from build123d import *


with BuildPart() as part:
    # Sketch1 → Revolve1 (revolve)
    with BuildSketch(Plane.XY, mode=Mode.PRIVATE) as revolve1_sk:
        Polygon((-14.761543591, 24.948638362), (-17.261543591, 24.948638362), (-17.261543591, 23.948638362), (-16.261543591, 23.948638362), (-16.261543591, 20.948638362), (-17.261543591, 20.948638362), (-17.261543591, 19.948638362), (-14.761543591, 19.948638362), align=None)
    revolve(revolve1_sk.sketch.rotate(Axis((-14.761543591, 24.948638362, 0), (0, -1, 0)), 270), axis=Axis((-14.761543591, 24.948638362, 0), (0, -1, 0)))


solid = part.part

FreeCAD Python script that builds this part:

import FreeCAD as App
import Part
import Sketcher

V = App.Vector
Q = App.Units.Quantity

doc = App.newDocument("Part")
body = doc.addObject("PartDesign::Body", "Body")

sketch1 = body.newObject("Sketcher::SketchObject", "Sketch")
sketch1.AttachmentSupport = (doc.getObject("XY_Plane"), [""])
sketch1.MapMode = "FlatFace"
sketch1.addGeometry([
    Part.LineSegment(V(-14.761544, 24.948638, 0), V(-17.261544, 24.948638, 0)),
    Part.LineSegment(V(-17.261544, 24.948638, 0), V(-17.261544, 23.948638, 0)),
    Part.LineSegment(V(-17.261544, 23.948638, 0), V(-16.261544, 23.948638, 0)),
    Part.LineSegment(V(-16.261544, 23.948638, 0), V(-16.261544, 20.948638, 0)),
    Part.LineSegment(V(-16.261544, 20.948638, 0), V(-17.261544, 20.948638, 0)),
    Part.LineSegment(V(-17.261544, 20.948638, 0), V(-17.261544, 19.948638, 0)),
    Part.LineSegment(V(-17.261544, 19.948638, 0), V(-14.761544, 19.948638, 0)),
    Part.LineSegment(V(-14.761544, 19.948638, 0), V(-14.761544, 24.948638, 0)),
], False)
sketch1.addGeometry(Part.LineSegment(V(-14.761544, 24.948638, 0), V(-14.761544, 19.948638, 0)), True)
sketch1.addConstraint([
    Sketcher.Constraint("Coincident", 0, 2, 1, 1),
    Sketcher.Constraint("Coincident", 1, 2, 2, 1),
    Sketcher.Constraint("Coincident", 2, 2, 3, 1),
    Sketcher.Constraint("Coincident", 3, 2, 4, 1),
    Sketcher.Constraint("Coincident", 4, 2, 5, 1),
    Sketcher.Constraint("Coincident", 5, 2, 6, 1),
    Sketcher.Constraint("Coincident", 6, 2, 7, 1),
    Sketcher.Constraint("Coincident", 7, 2, 0, 1),
    Sketcher.Constraint("Horizontal", 0),
    Sketcher.Constraint("Vertical", 1),
    Sketcher.Constraint("Horizontal", 2),
    Sketcher.Constraint("Vertical", 3),
    Sketcher.Constraint("Horizontal", 4),
    Sketcher.Constraint("Vertical", 5),
    Sketcher.Constraint("Horizontal", 6),
    Sketcher.Constraint("Vertical", 7),
    Sketcher.Constraint("Vertical", 8),
    Sketcher.Constraint("Coincident", 8, 1, 7, 2),
    Sketcher.Constraint("Horizontal", 5, 2, 8, 2),
    Sketcher.Constraint("Vertical", 1, 2, 4, 2),
    Sketcher.Constraint("Equal", 4, 1),
    Sketcher.Constraint("Equal", 1, 5),
    Sketcher.Constraint("DistanceX", 2, 1, 2, 2, Q("1 mm")),
    Sketcher.Constraint("DistanceY", 3, 2, 3, 1, Q("3 mm")),
    Sketcher.Constraint("DistanceX", 0, 2, 0, 1, Q("2.5 mm")),
    Sketcher.Constraint("DistanceY", -1, 1, 0, 2, Q("24.948638 mm")),
    Sketcher.Constraint("DistanceX", 0, 2, -1, 1, Q("17.261544 mm")),
])
revolution = body.newObject("PartDesign::Revolution", "Revolution")
revolution.Profile = sketch1
revolution.ReferenceAxis = (sketch1, ["Axis0"])
revolution.Angle = 360

doc.recompute()
